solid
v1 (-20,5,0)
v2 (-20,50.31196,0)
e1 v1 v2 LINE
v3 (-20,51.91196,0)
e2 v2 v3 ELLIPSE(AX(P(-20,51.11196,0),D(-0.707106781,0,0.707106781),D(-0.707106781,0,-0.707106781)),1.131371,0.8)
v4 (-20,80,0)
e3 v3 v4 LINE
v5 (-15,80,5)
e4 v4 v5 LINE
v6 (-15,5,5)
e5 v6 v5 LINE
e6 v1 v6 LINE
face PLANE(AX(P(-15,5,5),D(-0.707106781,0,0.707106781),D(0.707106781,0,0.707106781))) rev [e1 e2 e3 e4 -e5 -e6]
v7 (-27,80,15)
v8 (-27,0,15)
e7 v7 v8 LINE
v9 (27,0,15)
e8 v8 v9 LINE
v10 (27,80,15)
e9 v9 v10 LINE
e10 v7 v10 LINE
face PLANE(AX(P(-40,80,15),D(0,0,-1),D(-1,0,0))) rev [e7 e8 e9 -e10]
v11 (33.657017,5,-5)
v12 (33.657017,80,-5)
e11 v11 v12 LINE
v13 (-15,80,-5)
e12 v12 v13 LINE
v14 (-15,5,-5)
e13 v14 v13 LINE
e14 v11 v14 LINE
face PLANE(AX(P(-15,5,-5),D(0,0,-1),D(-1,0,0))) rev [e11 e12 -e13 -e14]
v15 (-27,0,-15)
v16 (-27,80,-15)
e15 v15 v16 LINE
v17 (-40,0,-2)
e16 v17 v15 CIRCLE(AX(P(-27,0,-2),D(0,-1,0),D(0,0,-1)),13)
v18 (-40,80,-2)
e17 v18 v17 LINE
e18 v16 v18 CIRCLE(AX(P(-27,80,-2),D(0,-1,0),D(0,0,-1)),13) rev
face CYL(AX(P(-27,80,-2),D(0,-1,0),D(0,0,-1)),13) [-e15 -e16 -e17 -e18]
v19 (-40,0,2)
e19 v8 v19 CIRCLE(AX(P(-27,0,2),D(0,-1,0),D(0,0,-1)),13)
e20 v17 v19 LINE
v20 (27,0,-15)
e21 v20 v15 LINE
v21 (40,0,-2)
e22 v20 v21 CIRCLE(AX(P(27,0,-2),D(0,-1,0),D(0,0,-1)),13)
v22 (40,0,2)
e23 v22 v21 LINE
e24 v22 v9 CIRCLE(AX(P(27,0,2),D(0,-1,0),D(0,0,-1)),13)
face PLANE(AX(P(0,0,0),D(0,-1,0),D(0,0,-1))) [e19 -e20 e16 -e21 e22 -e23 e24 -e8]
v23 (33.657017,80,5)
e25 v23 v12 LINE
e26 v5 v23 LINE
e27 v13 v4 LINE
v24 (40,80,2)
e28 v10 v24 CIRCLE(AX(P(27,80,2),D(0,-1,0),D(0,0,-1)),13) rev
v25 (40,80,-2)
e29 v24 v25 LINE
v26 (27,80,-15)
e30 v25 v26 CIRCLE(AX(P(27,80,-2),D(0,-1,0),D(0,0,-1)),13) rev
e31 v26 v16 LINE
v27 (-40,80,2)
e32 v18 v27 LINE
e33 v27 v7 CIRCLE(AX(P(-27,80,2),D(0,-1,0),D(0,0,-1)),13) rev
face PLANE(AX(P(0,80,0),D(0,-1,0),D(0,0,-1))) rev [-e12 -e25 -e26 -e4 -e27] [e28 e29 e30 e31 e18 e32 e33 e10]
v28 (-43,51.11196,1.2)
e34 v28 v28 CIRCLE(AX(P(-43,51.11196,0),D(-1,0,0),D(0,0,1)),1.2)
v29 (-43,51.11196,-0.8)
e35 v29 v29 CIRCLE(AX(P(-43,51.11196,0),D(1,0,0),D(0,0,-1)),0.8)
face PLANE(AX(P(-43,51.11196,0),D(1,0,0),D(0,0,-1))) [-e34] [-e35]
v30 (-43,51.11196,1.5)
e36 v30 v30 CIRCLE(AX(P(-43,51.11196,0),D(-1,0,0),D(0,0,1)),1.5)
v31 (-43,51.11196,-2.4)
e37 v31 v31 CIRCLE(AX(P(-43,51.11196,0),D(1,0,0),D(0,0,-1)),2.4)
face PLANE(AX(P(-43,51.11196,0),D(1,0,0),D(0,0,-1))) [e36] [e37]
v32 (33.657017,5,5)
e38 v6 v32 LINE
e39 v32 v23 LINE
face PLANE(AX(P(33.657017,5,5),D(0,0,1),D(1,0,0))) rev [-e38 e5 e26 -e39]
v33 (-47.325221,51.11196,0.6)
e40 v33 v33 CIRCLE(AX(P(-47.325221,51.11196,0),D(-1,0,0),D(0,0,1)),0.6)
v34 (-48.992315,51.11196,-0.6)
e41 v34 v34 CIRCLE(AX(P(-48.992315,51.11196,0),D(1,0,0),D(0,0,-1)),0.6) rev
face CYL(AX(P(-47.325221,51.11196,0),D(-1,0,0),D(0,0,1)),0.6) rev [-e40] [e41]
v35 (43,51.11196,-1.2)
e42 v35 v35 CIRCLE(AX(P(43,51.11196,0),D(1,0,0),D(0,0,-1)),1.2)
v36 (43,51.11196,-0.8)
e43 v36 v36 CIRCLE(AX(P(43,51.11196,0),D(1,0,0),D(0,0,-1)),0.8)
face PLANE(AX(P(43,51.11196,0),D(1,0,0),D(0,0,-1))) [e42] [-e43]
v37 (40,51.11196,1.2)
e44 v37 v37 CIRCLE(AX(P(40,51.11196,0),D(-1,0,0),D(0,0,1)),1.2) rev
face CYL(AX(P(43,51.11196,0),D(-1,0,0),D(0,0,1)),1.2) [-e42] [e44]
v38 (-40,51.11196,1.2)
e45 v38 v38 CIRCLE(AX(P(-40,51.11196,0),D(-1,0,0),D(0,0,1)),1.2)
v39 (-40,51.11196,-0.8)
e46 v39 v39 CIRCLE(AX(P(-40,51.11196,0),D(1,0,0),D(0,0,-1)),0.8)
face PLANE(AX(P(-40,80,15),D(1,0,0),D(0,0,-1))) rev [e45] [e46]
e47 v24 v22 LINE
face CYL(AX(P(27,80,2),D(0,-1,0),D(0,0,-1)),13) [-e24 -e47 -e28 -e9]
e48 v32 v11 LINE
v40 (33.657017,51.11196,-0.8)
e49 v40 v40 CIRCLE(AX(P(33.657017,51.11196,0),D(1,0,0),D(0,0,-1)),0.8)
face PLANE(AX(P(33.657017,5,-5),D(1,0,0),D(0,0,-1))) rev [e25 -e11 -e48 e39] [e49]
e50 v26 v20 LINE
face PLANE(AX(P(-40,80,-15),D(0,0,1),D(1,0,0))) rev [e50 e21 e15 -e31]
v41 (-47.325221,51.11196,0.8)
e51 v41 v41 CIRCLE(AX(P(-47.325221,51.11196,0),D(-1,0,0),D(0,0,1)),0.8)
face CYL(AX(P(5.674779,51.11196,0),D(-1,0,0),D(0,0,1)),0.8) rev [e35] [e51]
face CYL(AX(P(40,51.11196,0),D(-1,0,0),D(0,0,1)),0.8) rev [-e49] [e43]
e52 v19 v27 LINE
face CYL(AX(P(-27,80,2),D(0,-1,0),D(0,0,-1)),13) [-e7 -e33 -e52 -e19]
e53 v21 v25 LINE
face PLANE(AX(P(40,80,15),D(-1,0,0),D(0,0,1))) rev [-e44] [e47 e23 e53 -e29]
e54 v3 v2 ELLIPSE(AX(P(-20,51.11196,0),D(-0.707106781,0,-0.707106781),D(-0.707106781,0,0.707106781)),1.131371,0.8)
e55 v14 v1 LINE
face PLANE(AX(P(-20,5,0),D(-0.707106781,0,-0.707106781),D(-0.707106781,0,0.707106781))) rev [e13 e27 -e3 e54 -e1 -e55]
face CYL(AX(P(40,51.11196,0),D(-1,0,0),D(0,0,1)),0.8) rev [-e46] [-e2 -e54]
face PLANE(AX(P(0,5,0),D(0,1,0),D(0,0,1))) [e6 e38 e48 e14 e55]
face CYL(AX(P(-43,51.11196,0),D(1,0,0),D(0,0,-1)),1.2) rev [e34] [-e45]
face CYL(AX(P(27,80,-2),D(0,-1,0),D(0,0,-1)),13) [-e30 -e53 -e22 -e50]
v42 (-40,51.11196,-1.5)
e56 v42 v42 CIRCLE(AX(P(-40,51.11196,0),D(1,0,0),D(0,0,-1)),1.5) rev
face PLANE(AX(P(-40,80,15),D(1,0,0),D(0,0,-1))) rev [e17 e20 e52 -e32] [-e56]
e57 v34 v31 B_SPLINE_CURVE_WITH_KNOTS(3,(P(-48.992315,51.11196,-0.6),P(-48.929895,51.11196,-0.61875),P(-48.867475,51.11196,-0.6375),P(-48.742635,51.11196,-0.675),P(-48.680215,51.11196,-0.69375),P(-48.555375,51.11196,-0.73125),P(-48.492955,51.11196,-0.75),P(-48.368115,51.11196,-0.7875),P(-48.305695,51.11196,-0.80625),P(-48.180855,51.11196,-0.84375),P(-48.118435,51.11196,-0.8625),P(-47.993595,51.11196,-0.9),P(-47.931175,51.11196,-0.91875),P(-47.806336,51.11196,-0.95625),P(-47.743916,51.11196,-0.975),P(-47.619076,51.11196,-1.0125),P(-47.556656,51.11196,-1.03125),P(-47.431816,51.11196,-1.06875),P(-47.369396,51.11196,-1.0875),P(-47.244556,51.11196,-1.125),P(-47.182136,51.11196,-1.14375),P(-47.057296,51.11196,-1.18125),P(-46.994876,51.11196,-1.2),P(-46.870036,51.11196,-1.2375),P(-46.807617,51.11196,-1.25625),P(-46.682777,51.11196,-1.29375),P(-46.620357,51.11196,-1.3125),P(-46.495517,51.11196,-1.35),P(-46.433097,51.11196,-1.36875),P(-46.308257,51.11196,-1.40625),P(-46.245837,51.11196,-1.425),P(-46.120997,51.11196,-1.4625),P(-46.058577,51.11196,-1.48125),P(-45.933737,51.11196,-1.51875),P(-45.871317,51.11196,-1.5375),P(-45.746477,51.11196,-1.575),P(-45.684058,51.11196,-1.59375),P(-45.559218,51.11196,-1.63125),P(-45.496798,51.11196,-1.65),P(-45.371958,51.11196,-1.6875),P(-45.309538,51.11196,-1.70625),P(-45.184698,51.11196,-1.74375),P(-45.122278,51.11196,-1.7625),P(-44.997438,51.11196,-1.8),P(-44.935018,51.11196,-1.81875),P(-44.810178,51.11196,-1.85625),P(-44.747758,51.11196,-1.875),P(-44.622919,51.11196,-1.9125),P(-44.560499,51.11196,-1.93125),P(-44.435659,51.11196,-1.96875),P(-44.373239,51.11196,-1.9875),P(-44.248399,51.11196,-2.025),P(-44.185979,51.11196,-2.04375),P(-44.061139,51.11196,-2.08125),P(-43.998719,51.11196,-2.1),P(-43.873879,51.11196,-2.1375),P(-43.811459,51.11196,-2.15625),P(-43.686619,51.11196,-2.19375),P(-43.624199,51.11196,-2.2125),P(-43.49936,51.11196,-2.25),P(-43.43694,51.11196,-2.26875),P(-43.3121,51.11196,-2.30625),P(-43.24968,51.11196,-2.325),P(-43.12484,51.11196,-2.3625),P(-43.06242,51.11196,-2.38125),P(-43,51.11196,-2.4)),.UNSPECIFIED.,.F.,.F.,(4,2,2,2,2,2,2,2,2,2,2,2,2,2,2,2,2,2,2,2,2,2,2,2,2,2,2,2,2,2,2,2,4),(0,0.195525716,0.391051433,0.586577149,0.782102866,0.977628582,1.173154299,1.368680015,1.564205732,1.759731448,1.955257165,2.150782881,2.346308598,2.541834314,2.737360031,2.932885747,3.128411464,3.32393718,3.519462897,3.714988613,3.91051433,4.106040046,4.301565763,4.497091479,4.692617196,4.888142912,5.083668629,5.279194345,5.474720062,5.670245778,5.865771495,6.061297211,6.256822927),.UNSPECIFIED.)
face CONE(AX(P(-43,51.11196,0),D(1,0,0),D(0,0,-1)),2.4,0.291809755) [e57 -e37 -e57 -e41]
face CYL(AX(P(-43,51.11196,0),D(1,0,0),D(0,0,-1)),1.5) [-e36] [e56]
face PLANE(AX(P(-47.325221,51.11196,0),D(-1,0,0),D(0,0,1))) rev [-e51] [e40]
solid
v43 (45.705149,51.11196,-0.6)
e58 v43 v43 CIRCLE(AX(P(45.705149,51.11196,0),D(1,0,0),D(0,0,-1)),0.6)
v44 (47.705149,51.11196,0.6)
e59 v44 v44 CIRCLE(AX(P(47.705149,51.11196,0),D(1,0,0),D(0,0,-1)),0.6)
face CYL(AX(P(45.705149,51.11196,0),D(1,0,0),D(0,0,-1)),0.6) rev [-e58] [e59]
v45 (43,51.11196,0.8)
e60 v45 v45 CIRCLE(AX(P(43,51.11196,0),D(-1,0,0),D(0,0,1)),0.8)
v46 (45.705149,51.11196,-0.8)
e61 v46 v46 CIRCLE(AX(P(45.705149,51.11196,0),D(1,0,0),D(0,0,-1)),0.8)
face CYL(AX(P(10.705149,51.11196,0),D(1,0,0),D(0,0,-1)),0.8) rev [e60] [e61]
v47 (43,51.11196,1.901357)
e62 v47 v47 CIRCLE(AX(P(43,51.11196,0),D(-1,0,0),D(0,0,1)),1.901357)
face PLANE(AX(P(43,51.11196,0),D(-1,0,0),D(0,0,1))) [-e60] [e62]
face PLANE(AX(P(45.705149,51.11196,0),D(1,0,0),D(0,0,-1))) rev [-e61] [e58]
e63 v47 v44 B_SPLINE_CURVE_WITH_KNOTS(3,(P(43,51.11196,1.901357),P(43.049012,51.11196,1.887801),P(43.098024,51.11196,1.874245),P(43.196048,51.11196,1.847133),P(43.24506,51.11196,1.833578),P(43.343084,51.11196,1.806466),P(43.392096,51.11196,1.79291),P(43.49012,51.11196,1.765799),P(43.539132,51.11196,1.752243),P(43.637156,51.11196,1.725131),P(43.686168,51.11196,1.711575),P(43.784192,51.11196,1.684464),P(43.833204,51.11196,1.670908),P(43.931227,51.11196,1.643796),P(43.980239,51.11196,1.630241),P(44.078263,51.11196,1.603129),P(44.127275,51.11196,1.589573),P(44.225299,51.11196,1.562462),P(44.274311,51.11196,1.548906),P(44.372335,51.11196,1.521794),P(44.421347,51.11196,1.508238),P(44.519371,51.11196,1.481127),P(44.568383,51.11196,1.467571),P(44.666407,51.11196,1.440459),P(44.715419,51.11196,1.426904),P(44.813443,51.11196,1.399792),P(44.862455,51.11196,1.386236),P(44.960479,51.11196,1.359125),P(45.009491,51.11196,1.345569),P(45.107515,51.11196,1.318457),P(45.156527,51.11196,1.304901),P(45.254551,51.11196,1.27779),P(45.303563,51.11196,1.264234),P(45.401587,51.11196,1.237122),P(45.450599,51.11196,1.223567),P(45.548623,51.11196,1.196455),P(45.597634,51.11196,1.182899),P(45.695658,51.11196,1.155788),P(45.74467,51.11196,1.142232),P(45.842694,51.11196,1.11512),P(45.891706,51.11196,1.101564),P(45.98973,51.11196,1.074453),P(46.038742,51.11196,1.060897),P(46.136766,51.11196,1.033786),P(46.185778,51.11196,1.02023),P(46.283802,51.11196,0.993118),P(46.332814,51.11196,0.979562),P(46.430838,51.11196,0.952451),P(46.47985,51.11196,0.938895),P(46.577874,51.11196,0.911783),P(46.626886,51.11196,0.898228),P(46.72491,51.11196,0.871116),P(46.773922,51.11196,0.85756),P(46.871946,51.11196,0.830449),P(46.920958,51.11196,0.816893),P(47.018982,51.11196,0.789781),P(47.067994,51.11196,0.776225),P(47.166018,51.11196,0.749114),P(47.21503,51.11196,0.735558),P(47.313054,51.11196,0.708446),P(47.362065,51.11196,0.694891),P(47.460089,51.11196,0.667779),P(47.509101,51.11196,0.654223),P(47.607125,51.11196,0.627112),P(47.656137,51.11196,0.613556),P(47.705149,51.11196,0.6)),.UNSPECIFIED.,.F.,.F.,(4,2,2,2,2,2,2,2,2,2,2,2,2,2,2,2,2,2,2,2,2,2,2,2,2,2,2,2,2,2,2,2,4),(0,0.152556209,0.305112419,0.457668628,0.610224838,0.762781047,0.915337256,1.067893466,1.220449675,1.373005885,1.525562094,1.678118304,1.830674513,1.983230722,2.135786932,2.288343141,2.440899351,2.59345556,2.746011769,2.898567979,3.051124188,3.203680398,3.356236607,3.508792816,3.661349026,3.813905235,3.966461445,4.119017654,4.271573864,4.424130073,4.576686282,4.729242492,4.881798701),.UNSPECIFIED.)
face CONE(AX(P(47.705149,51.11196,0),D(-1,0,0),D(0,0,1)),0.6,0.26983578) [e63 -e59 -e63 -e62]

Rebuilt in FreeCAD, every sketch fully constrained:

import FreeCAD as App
import Part
import Sketcher


def edges_at(feature, points):
    """Names of the edges that pass closest to the given points."""
    edges = feature.Shape.Edges
    near = lambda p: min(range(len(edges)), key=lambda i: edges[i].distToShape(Part.Vertex(*p))[0])
    return sorted({f"Edge{near(p) + 1}" for p in points})

doc = App.newDocument("Part")
body = doc.addObject("PartDesign::Body", "Body")

sketch1 = body.newObject("Sketcher::SketchObject", "Sketch")
sketch1.AttachmentSupport = (doc.getObject("XZ_Plane"), [""])
sketch1.MapMode = "FlatFace"
sketch1.addGeometry([
    Part.LineSegment(App.Vector(-40, -15, 0), App.Vector(-40, 15, 0)),
    Part.LineSegment(App.Vector(-40, 15, 0), App.Vector(40, 15, 0)),
    Part.LineSegment(App.Vector(40, 15, 0), App.Vector(40, -15, 0)),
    Part.LineSegment(App.Vector(40, -15, 0), App.Vector(-40, -15, 0)),
], False)
sketch1.addConstraint([
    Sketcher.Constraint("Coincident", 0, 2, 1, 1),
    Sketcher.Constraint("Coincident", 1, 2, 2, 1),
    Sketcher.Constraint("Coincident", 2, 2, 3, 1),
    Sketcher.Constraint("Coincident", 3, 2, 0, 1),
    Sketcher.Constraint("Vertical", 0),
    Sketcher.Constraint("Horizontal", 1),
    Sketcher.Constraint("Vertical", 2),
    Sketcher.Constraint("Horizontal", 3),
    Sketcher.Constraint("Symmetric", 0, 2, 2, 2, -1, 1),
    Sketcher.Constraint("DistanceX", 1, 1, 1, 2, 80.0),
    Sketcher.Constraint("DistanceY", 0, 1, 0, 2, 30.0),
])
pad1 = body.newObject("PartDesign::Pad", "Pad")
pad1.Profile = sketch1
pad1.Length = 80
pad1.Reversed = True

sketch2 = body.newObject("Sketcher::SketchObject", "Sketch001")
sketch2.AttachmentSupport = (doc.getObject("XZ_Plane"), [""])
sketch2.MapMode = "FlatFace"
sketch2.AttachmentOffset = App.Placement(App.Vector(0, 0, -80), App.Rotation())
sketch2.addGeometry([
    Part.LineSegment(App.Vector(34, -5, 0), App.Vector(-15, -5, 0)),
    Part.LineSegment(App.Vector(-15, -5, 0), App.Vector(-20, 0, 0)),
    Part.LineSegment(App.Vector(-20, 0, 0), App.Vector(-15, 5, 0)),
    Part.LineSegment(App.Vector(-15, 5, 0), App.Vector(34, 5, 0)),
    Part.LineSegment(App.Vector(34, 5, 0), App.Vector(34, -5, 0)),
], False)
sketch2.addConstraint([
    Sketcher.Constraint("Coincident", 0, 2, 1, 1),
    Sketcher.Constraint("Coincident", 1, 2, 2, 1),
    Sketcher.Constraint("Coincident", 2, 2, 3, 1),
    Sketcher.Constraint("Coincident", 3, 2, 4, 1),
    Sketcher.Constraint("Coincident", 4, 2, 0, 1),
    Sketcher.Constraint("Horizontal", 0),
    Sketcher.Constraint("Horizontal", 3),
    Sketcher.Constraint("Vertical", 4),
    Sketcher.Constraint("Symmetric", 0, 2, 2, 2, -1),
    Sketcher.Constraint("PointOnObject", 1, 2, -1),
    Sketcher.Constraint("Perpendicular", 1, 2),
    Sketcher.Constraint("DistanceY", 4, 2, 4, 1, 10.0),
    Sketcher.Constraint("DistanceX", 0, 2, -1, 1, 15.0),
    Sketcher.Constraint("DistanceX", 0, 2, 0, 1, 48.657017),
])
pocket1 = body.newObject("PartDesign::Pocket", "Pocket")
pocket1.Profile = sketch2
pocket1.Length = 75
pocket1.Reversed = True

sketch3 = body.newObject("Sketcher::SketchObject", "Sketch002")
sketch3.AttachmentSupport = (doc.getObject("YZ_Plane"), [""])
sketch3.MapMode = "FlatFace"
sketch3.AttachmentOffset = App.Placement(App.Vector(0, 0, -40), App.Rotation())
sketch3.addGeometry(Part.Circle(App.Vector(51.1, 0, 0), App.Vector(0, 0, 1), 0.8), False)
sketch3.addConstraint([
    Sketcher.Constraint("PointOnObject", 0, 3, -1),
    Sketcher.Constraint("Diameter", 0, 1.6),
    Sketcher.Constraint("DistanceX", -1, 1, 0, 3, 51.11196),
])
pocket2 = body.newObject("PartDesign::Pocket", "Pocket001")
pocket2.Profile = sketch3
pocket2.Type = "ThroughAll"
pocket2.Midplane = True

sketch4 = body.newObject("Sketcher::SketchObject", "Sketch003")
sketch4.AttachmentSupport = (doc.getObject("YZ_Plane"), [""])
sketch4.MapMode = "FlatFace"
sketch4.AttachmentOffset = App.Placement(App.Vector(0, 0, -40), App.Rotation())
sketch4.addGeometry([
    Part.Circle(App.Vector(51.1, 0, 0), App.Vector(0, 0, 1), 1.5),
    Part.Circle(App.Vector(51.1, 0, 0), App.Vector(0, 0, 1), 1.2),
], False)
sketch4.addConstraint([
    Sketcher.Constraint("Coincident", 1, 3, 0, 3),
    Sketcher.Constraint("PointOnObject", 0, 3, -1),
    Sketcher.Constraint("Diameter", 0, 3.0),
    Sketcher.Constraint("Diameter", 1, 2.4),
    Sketcher.Constraint("DistanceX", -1, 1, 0, 3, 51.11196),
])
pad2 = body.newObject("PartDesign::Pad", "Pad001")
pad2.Profile = sketch4
pad2.Length = 3
pad2.Reversed = True

sketch5 = body.newObject("Sketcher::SketchObject", "Sketch004")
sketch5.AttachmentSupport = (doc.getObject("XY_Plane"), [""])
sketch5.MapMode = "FlatFace"
sketch5.addGeometry([
    Part.LineSegment(App.Vector(-49.3, 51.1, 0), App.Vector(-43, 51.1, 0)),
    Part.LineSegment(App.Vector(-43, 51.1, 0), App.Vector(-43, 53.5, 0)),
    Part.LineSegment(App.Vector(-43, 53.5, 0), App.Vector(-49.3, 51.6, 0)),
    Part.LineSegment(App.Vector(-49.3, 51.6, 0), App.Vector(-49.3, 51.1, 0)),
], False)
sketch5.addGeometry(Part.LineSegment(App.Vector(-43, 51.1, 0), App.Vector(-49.3, 51.1, 0)), True)
sketch5.addConstraint([
    Sketcher.Constraint("Coincident", 0, 2, 1, 1),
    Sketcher.Constraint("Coincident", 1, 2, 2, 1),
    Sketcher.Constraint("Coincident", 2, 2, 3, 1),
    Sketcher.Constraint("Coincident", 3, 2, 0, 1),
    Sketcher.Constraint("Horizontal", 0),
    Sketcher.Constraint("Vertical", 1),
    Sketcher.Constraint("Vertical", 3),
    Sketcher.Constraint("Horizontal", 4),
    Sketcher.Constraint("Coincident", 4, 1, 0, 2),
    Sketcher.Constraint("Vertical", 2, 2, 4, 2),
    Sketcher.Constraint("DistanceY", 1, 1, 1, 2, 2.4),
    Sketcher.Constraint("DistanceY", 3, 2, 3, 1, 0.5),
    Sketcher.Constraint("DistanceX", 0, 2, -1, 1, 43.0),
    Sketcher.Constraint("DistanceX", 0, 1, 0, 2, 6.325221),
    Sketcher.Constraint("DistanceY", -1, 1, 0, 2, 51.11196),
])
revolution = body.newObject("PartDesign::Revolution", "Revolution")
revolution.Profile = sketch5
revolution.ReferenceAxis = (sketch5, ["Axis0"])
revolution.Angle = 360

sketch6 = body.newObject("Sketcher::SketchObject", "Sketch005")
sketch6.AttachmentSupport = (doc.getObject("YZ_Plane"), [""])
sketch6.MapMode = "FlatFace"
sketch6.AttachmentOffset = App.Placement(App.Vector(0, 0, -49.325221), App.Rotation())
sketch6.addGeometry(Part.Circle(App.Vector(51.1, 0, 0), App.Vector(0, 0, 1), 0.6), False)
sketch6.addConstraint([
    Sketcher.Constraint("PointOnObject", 0, 3, -1),
    Sketcher.Constraint("Diameter", 0, 1.2),
    Sketcher.Constraint("DistanceX", -1, 1, 0, 3, 51.11196),
])
pocket3 = body.newObject("PartDesign::Pocket", "Pocket002")
pocket3.Profile = sketch6
pocket3.Length = 2
pocket3.Reversed = True

sketch7 = body.newObject("Sketcher::SketchObject", "Sketch006")
sketch7.AttachmentSupport = (doc.getObject("YZ_Plane"), [""])
sketch7.MapMode = "FlatFace"
sketch7.AttachmentOffset = App.Placement(App.Vector(0, 0, -47.325221), App.Rotation())
sketch7.addGeometry(Part.Circle(App.Vector(51.1, 0, 0), App.Vector(0, 0, 1), 0.8), False)
sketch7.addConstraint([
    Sketcher.Constraint("PointOnObject", 0, 3, -1),
    Sketcher.Constraint("Diameter", 0, 1.6),
    Sketcher.Constraint("DistanceX", -1, 1, 0, 3, 51.11196),
])
pocket4 = body.newObject("PartDesign::Pocket", "Pocket003")
pocket4.Profile = sketch7
pocket4.Length = 53
pocket4.Reversed = True
doc.recompute()

fillet = body.newObject("PartDesign::Fillet", "Fillet")
fillet.Base = (pocket4, edges_at(pocket4, [
    (40, 40, 15),
    (-40, 40, 15),
    (-40, 40, -15),
    (40, 40, -15),
]))
fillet.Radius = 13

sketch8 = body.newObject("Sketcher::SketchObject", "Sketch007")
sketch8.AttachmentSupport = (doc.getObject("YZ_Plane"), [""])
sketch8.MapMode = "FlatFace"
sketch8.AttachmentOffset = App.Placement(App.Vector(0, 0, 40), App.Rotation())
sketch8.addGeometry([
    Part.Circle(App.Vector(51.1, 0, 0), App.Vector(0, 0, 1), 1.2),
    Part.Circle(App.Vector(51.1, 0, 0), App.Vector(0, 0, 1), 0.8),
], False)
sketch8.addConstraint([
    Sketcher.Constraint("Coincident", 1, 3, 0, 3),
    Sketcher.Constraint("PointOnObject", 0, 3, -1),
    Sketcher.Constraint("Diameter", 0, 2.4),
    Sketcher.Constraint("Diameter", 1, 1.6),
    Sketcher.Constraint("DistanceX", -1, 1, 0, 3, 51.11196),
])
pad3 = body.newObject("PartDesign::Pad", "Pad002")
pad3.Profile = sketch8
pad3.Length = 3
body2 = doc.addObject("PartDesign::Body", "Body001")

sketch9 = body2.newObject("Sketcher::SketchObject", "Sketch008")
sketch9.AttachmentSupport = (doc.getObject("XY_Plane001"), [""])
sketch9.MapMode = "FlatFace"
sketch9.addGeometry([
    Part.LineSegment(App.Vector(43, 53, 0), App.Vector(43, 51.1, 0)),
    Part.LineSegment(App.Vector(43, 51.1, 0), App.Vector(47.7, 51.1, 0)),
    Part.LineSegment(App.Vector(47.7, 51.1, 0), App.Vector(47.7, 51.7, 0)),
    Part.LineSegment(App.Vector(47.7, 51.7, 0), App.Vector(43, 53, 0)),
], False)
sketch9.addGeometry(Part.LineSegment(App.Vector(43, 51.1, 0), App.Vector(47.7, 51.1, 0)), True)
sketch9.addConstraint([
    Sketcher.Constraint("Coincident", 0, 2, 1, 1),
    Sketcher.Constraint("Coincident", 1, 2, 2, 1),
    Sketcher.Constraint("Coincident", 2, 2, 3, 1),
    Sketcher.Constraint("Coincident", 3, 2, 0, 1),
    Sketcher.Constraint("Vertical", 0),
    Sketcher.Constraint("Horizontal", 1),
    Sketcher.Constraint("Vertical", 2),
    Sketcher.Constraint("Horizontal", 4),
    Sketcher.Constraint("Coincident", 4, 1, 0, 2),
    Sketcher.Constraint("Vertical", 2, 2, 4, 2),
    Sketcher.Constraint("DistanceY", 2, 1, 2, 2, 0.6),
    Sketcher.Constraint("DistanceX", -1, 1, 0, 2, 43.0),
    Sketcher.Constraint("Distance", 3, 4.881799),
    Sketcher.Constraint("DistanceX", 1, 1, 1, 2, 4.705149),
    Sketcher.Constraint("DistanceY", -1, 1, 0, 2, 51.11196),
])
revolution2 = body2.newObject("PartDesign::Revolution", "Revolution001")
revolution2.Profile = sketch9
revolution2.ReferenceAxis = (sketch9, ["Axis0"])
revolution2.Angle = 360

sketch10 = body2.newObject("Sketcher::SketchObject", "Sketch009")
sketch10.AttachmentSupport = (doc.getObject("YZ_Plane001"), [""])
sketch10.MapMode = "FlatFace"
sketch10.AttachmentOffset = App.Placement(App.Vector(0, 0, 45.705149), App.Rotation())
sketch10.addGeometry(Part.Circle(App.Vector(51.1, 0, 0), App.Vector(0, 0, 1), 0.6), False)
sketch10.addConstraint([
    Sketcher.Constraint("PointOnObject", 0, 3, -1),
    Sketcher.Constraint("Diameter", 0, 1.2),
    Sketcher.Constraint("DistanceX", -1, 1, 0, 3, 51.11196),
])
pocket5 = body2.newObject("PartDesign::Pocket", "Pocket004")
pocket5.Profile = sketch10
pocket5.Length = 2
pocket5.Reversed = True

sketch11 = body2.newObject("Sketcher::SketchObject", "Sketch010")
sketch11.AttachmentSupport = (doc.getObject("YZ_Plane001"), [""])
sketch11.MapMode = "FlatFace"
sketch11.AttachmentOffset = App.Placement(App.Vector(0, 0, 10.705149), App.Rotation())
sketch11.addGeometry(Part.Circle(App.Vector(51.1, 0, 0), App.Vector(0, 0, 1), 0.8), False)
sketch11.addConstraint([
    Sketcher.Constraint("PointOnObject", 0, 3, -1),
    Sketcher.Constraint("Diameter", 0, 1.6),
    Sketcher.Constraint("DistanceX", -1, 1, 0, 3, 51.11196),
])
pocket6 = body2.newObject("PartDesign::Pocket", "Pocket005")
pocket6.Profile = sketch11
pocket6.Length = 35
pocket6.Reversed = True

doc.recompute()
